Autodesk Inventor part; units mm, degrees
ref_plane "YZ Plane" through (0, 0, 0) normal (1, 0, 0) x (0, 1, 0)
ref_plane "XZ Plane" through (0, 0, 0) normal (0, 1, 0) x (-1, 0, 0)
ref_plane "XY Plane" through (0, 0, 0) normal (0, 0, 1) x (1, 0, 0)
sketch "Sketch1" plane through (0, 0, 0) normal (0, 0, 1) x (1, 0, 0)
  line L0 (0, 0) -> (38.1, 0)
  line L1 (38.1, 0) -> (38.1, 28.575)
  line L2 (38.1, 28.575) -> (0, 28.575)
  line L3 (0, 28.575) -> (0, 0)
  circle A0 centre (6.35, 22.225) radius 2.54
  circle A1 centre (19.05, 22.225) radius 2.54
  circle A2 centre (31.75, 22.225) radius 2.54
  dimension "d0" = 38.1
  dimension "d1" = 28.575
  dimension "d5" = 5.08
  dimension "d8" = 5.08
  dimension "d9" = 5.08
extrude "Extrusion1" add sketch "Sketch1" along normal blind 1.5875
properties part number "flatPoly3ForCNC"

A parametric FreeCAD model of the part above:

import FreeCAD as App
import Part
import Sketcher
Q = App.Units.Quantity


def add_polygon(sketch, points):
    """Adds a closed chain of lines whose ends are joined by coincident constraints."""
    first, n = sketch.GeometryCount, len(points)
    for a, b in zip(points, points[1:] + points[:1]):
        sketch.addGeometry(Part.LineSegment(App.Vector(*a, 0), App.Vector(*b, 0)), False)
    for i in range(n):
        sketch.addConstraint(Sketcher.Constraint("Coincident", first + i, 2, first + (i + 1) % n, 1))

doc = App.newDocument("Part")
body = doc.addObject("PartDesign::Body", "Body")

# Sketch on XY plane
sketch1 = body.newObject("Sketcher::SketchObject", "Sketch")
sketch1.AttachmentSupport = (doc.getObject("XY_Plane"), [""])
sketch1.MapMode = "FlatFace"
add_polygon(sketch1, [(0, 28.6), (0, 0), (38.1, 0), (38.1, 28.6)])  # lines 0-3
sketch1.addGeometry(Part.Circle(App.Vector(6.3, 22.2, 0), App.Vector(0, 0, 1), 2.5), False)  # 4
sketch1.addGeometry(Part.Circle(App.Vector(19.1, 22.2, 0), App.Vector(0, 0, 1), 2.5), False)  # 5
sketch1.addGeometry(Part.Circle(App.Vector(31.8, 22.2, 0), App.Vector(0, 0, 1), 2.5), False)  # 6
sketch1.addConstraint([
    Sketcher.Constraint("Vertical", 0),
    Sketcher.Constraint("Horizontal", 1),
    Sketcher.Constraint("Vertical", 2),
    Sketcher.Constraint("Horizontal", 3),
    Sketcher.Constraint("Coincident", 0, 2, -1, 1),
    Sketcher.Constraint("Equal", 4, 5),
    Sketcher.Constraint("Equal", 5, 6),
    Sketcher.Constraint("Horizontal", 4, 3, 5, 3),
    Sketcher.Constraint("Horizontal", 5, 3, 6, 3),
    Sketcher.Constraint("Diameter", 4, Q("0.2 in")),
    Sketcher.Constraint("DistanceX", 1, 1, 1, 2, Q("1.5 in")),
    Sketcher.Constraint("DistanceY", 0, 2, 0, 1, Q("1.125 in")),
    Sketcher.Constraint("DistanceX", 4, 3, 6, 3, Q("1 in")),
    Sketcher.Constraint("DistanceX", 4, 3, 5, 3, Q("0.5 in")),
    Sketcher.Constraint("DistanceX", -1, 1, 4, 3, Q("0.25 in")),
    Sketcher.Constraint("DistanceY", 6, 3, 2, 2, Q("0.25 in")),
])
pad1 = body.newObject("PartDesign::Pad", "Pad")
pad1.Profile = sketch1
pad1.Length = Q("0.0625 in")

doc.recompute()
